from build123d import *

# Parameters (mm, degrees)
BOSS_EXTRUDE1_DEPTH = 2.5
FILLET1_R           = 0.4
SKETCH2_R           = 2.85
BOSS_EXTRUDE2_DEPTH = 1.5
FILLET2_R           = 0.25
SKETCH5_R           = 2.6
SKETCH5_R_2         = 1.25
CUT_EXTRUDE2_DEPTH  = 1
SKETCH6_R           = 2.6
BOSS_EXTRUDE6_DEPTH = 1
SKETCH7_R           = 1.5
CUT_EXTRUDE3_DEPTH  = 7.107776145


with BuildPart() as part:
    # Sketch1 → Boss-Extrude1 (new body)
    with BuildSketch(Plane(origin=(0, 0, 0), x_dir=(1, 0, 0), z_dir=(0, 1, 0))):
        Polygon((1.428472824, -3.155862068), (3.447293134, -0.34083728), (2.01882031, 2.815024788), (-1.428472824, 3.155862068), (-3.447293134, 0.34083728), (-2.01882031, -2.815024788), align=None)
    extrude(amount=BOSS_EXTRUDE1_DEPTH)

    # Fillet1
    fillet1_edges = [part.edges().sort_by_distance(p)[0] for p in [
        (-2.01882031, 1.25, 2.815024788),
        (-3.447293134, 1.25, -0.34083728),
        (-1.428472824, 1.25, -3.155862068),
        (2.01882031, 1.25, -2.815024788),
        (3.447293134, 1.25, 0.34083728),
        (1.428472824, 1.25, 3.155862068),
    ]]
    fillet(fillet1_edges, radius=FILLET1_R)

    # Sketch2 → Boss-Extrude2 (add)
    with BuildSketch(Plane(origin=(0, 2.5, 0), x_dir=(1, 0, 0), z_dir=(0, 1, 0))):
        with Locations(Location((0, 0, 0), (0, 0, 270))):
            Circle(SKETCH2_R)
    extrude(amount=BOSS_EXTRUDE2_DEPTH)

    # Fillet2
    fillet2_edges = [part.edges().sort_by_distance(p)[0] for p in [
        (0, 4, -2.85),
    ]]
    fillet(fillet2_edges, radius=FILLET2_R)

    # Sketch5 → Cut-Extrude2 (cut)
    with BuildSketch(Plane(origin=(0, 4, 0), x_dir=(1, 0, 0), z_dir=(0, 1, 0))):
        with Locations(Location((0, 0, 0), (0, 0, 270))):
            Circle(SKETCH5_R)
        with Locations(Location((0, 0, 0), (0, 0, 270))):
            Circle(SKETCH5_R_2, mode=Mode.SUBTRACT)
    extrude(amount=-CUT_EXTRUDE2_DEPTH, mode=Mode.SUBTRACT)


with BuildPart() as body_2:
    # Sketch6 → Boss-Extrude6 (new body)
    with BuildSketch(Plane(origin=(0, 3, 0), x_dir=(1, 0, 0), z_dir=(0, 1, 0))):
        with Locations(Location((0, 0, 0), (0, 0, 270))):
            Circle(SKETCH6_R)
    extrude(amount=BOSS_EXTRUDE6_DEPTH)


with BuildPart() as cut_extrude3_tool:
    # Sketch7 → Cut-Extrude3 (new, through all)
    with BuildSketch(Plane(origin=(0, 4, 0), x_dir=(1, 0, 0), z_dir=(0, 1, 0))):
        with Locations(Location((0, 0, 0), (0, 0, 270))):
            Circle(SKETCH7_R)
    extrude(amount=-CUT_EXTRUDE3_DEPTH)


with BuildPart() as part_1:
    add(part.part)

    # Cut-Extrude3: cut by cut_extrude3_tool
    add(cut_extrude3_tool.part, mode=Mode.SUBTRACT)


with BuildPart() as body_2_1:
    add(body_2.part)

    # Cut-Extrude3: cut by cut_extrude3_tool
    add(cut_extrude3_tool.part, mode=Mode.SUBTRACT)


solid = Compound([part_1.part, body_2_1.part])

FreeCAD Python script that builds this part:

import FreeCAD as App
import Part
import Sketcher
from FreeCAD import Vector


def edges_at(feature, points):
    """Names of the edges that pass closest to the given points."""
    edges = feature.Shape.Edges
    near = lambda p: min(range(len(edges)), key=lambda i: edges[i].distToShape(Part.Vertex(*p))[0])
    return sorted({f"Edge{near(p) + 1}" for p in points})


def add_polygon(sketch, points):
    """Adds a closed chain of lines whose ends are joined by coincident constraints."""
    first, n = sketch.GeometryCount, len(points)
    for a, b in zip(points, points[1:] + points[:1]):
        sketch.addGeometry(Part.LineSegment(App.Vector(*a, 0), App.Vector(*b, 0)), False)
    for i in range(n):
        sketch.addConstraint(Sketcher.Constraint("Coincident", first + i, 2, first + (i + 1) % n, 1))

doc = App.newDocument("Part")
body = doc.addObject("PartDesign::Body", "Body")

sketch1 = body.newObject("Sketcher::SketchObject", "Sketch")
sketch1.AttachmentSupport = (doc.getObject("XZ_Plane"), [""])
sketch1.MapMode = "FlatFace"
add_polygon(sketch1, [(1.4, 3.2), (3.4, 0.3), (2, -2.8), (-1.4, -3.2), (-3.4, -0.3), (-2, 2.8)])
sketch1.addConstraint(Sketcher.Constraint("Symmetric", 0, 2, 3, 2, -1, 1))
sketch1.addConstraint(Sketcher.Constraint("Symmetric", 1, 2, 4, 2, -1, 1))
sketch1.addConstraint(Sketcher.Constraint("Symmetric", 2, 2, 5, 2, -1, 1))
sketch1.addConstraint(Sketcher.Constraint("Equal", 0, 1))
sketch1.addConstraint(Sketcher.Constraint("Equal", 1, 2))
sketch1.addConstraint(Sketcher.Constraint("Distance", 0, 3.464102))
sketch1.addConstraint(Sketcher.Constraint("DistanceY", 2, 2, 0, 2, 3.496699))
sketch1.addConstraint(Sketcher.Constraint("DistanceX", -1, 1, 1, 2, 2.01882))
sketch1.addConstraint(Sketcher.Constraint("DistanceX", 3, 2, 2, 2, 2.01882))
pad1 = body.newObject("PartDesign::Pad", "Pad")
pad1.Profile = sketch1
pad1.Length = 2.5
pad1.Reversed = True
doc.recompute()

fillet = body.newObject("PartDesign::Fillet", "Fillet")
fillet.Base = (pad1, edges_at(pad1, [
    (-2.019, 1.25, 2.815),
    (-3.447, 1.25, -0.341),
    (-1.428, 1.25, -3.156),
    (2.019, 1.25, -2.815),
    (3.447, 1.25, 0.341),
    (1.428, 1.25, 3.156),
]))
fillet.Radius = 0.4

sketch2 = body.newObject("Sketcher::SketchObject", "Sketch001")
sketch2.AttachmentSupport = (doc.getObject("XZ_Plane"), [""])
sketch2.MapMode = "FlatFace"
sketch2.AttachmentOffset = App.Placement(Vector(0, 0, -2.5), App.Rotation())
sketch2.addGeometry(Part.Circle(Vector(0, 0, 0), Vector(0, 0, 1), 2.9), False)
sketch2.addConstraint(Sketcher.Constraint("Coincident", 0, 3, -1, 1))
sketch2.addConstraint(Sketcher.Constraint("Diameter", 0, 5.7))
pad2 = body.newObject("PartDesign::Pad", "Pad001")
pad2.Profile = sketch2
pad2.Length = 1.5
pad2.Reversed = True
doc.recompute()

fillet2 = body.newObject("PartDesign::Fillet", "Fillet001")
fillet2.Base = (pad2, edges_at(pad2, [(0, 4, -2.85)]))
fillet2.Radius = 0.25

sketch3 = body.newObject("Sketcher::SketchObject", "Sketch002")
sketch3.AttachmentSupport = (doc.getObject("XZ_Plane"), [""])
sketch3.MapMode = "FlatFace"
sketch3.AttachmentOffset = App.Placement(Vector(0, 0, -4), App.Rotation())
sketch3.addGeometry(Part.Circle(Vector(0, 0, 0), Vector(0, 0, 1), 2.6), False)
sketch3.addGeometry(Part.Circle(Vector(0, 0, 0), Vector(0, 0, 1), 1.2), False)
sketch3.addConstraint(Sketcher.Constraint("Coincident", 0, 3, -1, 1))
sketch3.addConstraint(Sketcher.Constraint("Coincident", 1, 3, -1, 1))
sketch3.addConstraint(Sketcher.Constraint("Diameter", 0, 5.2))
sketch3.addConstraint(Sketcher.Constraint("Diameter", 1, 2.5))
pocket1 = body.newObject("PartDesign::Pocket", "Pocket")
pocket1.Profile = sketch3
pocket1.Length = 1
pocket1.Reversed = True
body2 = doc.addObject("PartDesign::Body", "Body001")

sketch4 = body2.newObject("Sketcher::SketchObject", "Sketch003")
sketch4.AttachmentSupport = (doc.getObject("XZ_Plane001"), [""])
sketch4.MapMode = "FlatFace"
sketch4.AttachmentOffset = App.Placement(Vector(0, 0, -3), App.Rotation())
sketch4.addGeometry(Part.Circle(Vector(0, 0, 0), Vector(0, 0, 1), 2.6), False)
sketch4.addConstraint(Sketcher.Constraint("Coincident", 0, 3, -1, 1))
sketch4.addConstraint(Sketcher.Constraint("Diameter", 0, 5.2))
pad3 = body2.newObject("PartDesign::Pad", "Pad002")
pad3.Profile = sketch4
pad3.Length = 1
pad3.Reversed = True
body3 = doc.addObject("PartDesign::Body", "Body002")

sketch5 = body3.newObject("Sketcher::SketchObject", "Sketch004")
sketch5.AttachmentSupport = (doc.getObject("XZ_Plane002"), [""])
sketch5.MapMode = "FlatFace"
sketch5.AttachmentOffset = App.Placement(Vector(0, 0, -4), App.Rotation())
sketch5.addGeometry(Part.Circle(Vector(0, 0, 0), Vector(0, 0, 1), 1.5), False)
sketch5.addConstraint(Sketcher.Constraint("Coincident", 0, 3, -1, 1))
sketch5.addConstraint(Sketcher.Constraint("Diameter", 0, 3.0))
pad4 = body3.newObject("PartDesign::Pad", "Pad003")
pad4.Profile = sketch5
pad4.Length = 7.107776
doc.recompute()

body4 = doc.addObject("PartDesign::Body", "Body003")
body4.BaseFeature = body3
boolean = body.newObject("PartDesign::Boolean", "Boolean")
boolean.Type = "Cut"
boolean.addObjects([body4])
doc.recompute()

boolean2 = body2.newObject("PartDesign::Boolean", "Boolean001")
boolean2.Type = "Cut"
boolean2.addObjects([body3])

doc.recompute()
